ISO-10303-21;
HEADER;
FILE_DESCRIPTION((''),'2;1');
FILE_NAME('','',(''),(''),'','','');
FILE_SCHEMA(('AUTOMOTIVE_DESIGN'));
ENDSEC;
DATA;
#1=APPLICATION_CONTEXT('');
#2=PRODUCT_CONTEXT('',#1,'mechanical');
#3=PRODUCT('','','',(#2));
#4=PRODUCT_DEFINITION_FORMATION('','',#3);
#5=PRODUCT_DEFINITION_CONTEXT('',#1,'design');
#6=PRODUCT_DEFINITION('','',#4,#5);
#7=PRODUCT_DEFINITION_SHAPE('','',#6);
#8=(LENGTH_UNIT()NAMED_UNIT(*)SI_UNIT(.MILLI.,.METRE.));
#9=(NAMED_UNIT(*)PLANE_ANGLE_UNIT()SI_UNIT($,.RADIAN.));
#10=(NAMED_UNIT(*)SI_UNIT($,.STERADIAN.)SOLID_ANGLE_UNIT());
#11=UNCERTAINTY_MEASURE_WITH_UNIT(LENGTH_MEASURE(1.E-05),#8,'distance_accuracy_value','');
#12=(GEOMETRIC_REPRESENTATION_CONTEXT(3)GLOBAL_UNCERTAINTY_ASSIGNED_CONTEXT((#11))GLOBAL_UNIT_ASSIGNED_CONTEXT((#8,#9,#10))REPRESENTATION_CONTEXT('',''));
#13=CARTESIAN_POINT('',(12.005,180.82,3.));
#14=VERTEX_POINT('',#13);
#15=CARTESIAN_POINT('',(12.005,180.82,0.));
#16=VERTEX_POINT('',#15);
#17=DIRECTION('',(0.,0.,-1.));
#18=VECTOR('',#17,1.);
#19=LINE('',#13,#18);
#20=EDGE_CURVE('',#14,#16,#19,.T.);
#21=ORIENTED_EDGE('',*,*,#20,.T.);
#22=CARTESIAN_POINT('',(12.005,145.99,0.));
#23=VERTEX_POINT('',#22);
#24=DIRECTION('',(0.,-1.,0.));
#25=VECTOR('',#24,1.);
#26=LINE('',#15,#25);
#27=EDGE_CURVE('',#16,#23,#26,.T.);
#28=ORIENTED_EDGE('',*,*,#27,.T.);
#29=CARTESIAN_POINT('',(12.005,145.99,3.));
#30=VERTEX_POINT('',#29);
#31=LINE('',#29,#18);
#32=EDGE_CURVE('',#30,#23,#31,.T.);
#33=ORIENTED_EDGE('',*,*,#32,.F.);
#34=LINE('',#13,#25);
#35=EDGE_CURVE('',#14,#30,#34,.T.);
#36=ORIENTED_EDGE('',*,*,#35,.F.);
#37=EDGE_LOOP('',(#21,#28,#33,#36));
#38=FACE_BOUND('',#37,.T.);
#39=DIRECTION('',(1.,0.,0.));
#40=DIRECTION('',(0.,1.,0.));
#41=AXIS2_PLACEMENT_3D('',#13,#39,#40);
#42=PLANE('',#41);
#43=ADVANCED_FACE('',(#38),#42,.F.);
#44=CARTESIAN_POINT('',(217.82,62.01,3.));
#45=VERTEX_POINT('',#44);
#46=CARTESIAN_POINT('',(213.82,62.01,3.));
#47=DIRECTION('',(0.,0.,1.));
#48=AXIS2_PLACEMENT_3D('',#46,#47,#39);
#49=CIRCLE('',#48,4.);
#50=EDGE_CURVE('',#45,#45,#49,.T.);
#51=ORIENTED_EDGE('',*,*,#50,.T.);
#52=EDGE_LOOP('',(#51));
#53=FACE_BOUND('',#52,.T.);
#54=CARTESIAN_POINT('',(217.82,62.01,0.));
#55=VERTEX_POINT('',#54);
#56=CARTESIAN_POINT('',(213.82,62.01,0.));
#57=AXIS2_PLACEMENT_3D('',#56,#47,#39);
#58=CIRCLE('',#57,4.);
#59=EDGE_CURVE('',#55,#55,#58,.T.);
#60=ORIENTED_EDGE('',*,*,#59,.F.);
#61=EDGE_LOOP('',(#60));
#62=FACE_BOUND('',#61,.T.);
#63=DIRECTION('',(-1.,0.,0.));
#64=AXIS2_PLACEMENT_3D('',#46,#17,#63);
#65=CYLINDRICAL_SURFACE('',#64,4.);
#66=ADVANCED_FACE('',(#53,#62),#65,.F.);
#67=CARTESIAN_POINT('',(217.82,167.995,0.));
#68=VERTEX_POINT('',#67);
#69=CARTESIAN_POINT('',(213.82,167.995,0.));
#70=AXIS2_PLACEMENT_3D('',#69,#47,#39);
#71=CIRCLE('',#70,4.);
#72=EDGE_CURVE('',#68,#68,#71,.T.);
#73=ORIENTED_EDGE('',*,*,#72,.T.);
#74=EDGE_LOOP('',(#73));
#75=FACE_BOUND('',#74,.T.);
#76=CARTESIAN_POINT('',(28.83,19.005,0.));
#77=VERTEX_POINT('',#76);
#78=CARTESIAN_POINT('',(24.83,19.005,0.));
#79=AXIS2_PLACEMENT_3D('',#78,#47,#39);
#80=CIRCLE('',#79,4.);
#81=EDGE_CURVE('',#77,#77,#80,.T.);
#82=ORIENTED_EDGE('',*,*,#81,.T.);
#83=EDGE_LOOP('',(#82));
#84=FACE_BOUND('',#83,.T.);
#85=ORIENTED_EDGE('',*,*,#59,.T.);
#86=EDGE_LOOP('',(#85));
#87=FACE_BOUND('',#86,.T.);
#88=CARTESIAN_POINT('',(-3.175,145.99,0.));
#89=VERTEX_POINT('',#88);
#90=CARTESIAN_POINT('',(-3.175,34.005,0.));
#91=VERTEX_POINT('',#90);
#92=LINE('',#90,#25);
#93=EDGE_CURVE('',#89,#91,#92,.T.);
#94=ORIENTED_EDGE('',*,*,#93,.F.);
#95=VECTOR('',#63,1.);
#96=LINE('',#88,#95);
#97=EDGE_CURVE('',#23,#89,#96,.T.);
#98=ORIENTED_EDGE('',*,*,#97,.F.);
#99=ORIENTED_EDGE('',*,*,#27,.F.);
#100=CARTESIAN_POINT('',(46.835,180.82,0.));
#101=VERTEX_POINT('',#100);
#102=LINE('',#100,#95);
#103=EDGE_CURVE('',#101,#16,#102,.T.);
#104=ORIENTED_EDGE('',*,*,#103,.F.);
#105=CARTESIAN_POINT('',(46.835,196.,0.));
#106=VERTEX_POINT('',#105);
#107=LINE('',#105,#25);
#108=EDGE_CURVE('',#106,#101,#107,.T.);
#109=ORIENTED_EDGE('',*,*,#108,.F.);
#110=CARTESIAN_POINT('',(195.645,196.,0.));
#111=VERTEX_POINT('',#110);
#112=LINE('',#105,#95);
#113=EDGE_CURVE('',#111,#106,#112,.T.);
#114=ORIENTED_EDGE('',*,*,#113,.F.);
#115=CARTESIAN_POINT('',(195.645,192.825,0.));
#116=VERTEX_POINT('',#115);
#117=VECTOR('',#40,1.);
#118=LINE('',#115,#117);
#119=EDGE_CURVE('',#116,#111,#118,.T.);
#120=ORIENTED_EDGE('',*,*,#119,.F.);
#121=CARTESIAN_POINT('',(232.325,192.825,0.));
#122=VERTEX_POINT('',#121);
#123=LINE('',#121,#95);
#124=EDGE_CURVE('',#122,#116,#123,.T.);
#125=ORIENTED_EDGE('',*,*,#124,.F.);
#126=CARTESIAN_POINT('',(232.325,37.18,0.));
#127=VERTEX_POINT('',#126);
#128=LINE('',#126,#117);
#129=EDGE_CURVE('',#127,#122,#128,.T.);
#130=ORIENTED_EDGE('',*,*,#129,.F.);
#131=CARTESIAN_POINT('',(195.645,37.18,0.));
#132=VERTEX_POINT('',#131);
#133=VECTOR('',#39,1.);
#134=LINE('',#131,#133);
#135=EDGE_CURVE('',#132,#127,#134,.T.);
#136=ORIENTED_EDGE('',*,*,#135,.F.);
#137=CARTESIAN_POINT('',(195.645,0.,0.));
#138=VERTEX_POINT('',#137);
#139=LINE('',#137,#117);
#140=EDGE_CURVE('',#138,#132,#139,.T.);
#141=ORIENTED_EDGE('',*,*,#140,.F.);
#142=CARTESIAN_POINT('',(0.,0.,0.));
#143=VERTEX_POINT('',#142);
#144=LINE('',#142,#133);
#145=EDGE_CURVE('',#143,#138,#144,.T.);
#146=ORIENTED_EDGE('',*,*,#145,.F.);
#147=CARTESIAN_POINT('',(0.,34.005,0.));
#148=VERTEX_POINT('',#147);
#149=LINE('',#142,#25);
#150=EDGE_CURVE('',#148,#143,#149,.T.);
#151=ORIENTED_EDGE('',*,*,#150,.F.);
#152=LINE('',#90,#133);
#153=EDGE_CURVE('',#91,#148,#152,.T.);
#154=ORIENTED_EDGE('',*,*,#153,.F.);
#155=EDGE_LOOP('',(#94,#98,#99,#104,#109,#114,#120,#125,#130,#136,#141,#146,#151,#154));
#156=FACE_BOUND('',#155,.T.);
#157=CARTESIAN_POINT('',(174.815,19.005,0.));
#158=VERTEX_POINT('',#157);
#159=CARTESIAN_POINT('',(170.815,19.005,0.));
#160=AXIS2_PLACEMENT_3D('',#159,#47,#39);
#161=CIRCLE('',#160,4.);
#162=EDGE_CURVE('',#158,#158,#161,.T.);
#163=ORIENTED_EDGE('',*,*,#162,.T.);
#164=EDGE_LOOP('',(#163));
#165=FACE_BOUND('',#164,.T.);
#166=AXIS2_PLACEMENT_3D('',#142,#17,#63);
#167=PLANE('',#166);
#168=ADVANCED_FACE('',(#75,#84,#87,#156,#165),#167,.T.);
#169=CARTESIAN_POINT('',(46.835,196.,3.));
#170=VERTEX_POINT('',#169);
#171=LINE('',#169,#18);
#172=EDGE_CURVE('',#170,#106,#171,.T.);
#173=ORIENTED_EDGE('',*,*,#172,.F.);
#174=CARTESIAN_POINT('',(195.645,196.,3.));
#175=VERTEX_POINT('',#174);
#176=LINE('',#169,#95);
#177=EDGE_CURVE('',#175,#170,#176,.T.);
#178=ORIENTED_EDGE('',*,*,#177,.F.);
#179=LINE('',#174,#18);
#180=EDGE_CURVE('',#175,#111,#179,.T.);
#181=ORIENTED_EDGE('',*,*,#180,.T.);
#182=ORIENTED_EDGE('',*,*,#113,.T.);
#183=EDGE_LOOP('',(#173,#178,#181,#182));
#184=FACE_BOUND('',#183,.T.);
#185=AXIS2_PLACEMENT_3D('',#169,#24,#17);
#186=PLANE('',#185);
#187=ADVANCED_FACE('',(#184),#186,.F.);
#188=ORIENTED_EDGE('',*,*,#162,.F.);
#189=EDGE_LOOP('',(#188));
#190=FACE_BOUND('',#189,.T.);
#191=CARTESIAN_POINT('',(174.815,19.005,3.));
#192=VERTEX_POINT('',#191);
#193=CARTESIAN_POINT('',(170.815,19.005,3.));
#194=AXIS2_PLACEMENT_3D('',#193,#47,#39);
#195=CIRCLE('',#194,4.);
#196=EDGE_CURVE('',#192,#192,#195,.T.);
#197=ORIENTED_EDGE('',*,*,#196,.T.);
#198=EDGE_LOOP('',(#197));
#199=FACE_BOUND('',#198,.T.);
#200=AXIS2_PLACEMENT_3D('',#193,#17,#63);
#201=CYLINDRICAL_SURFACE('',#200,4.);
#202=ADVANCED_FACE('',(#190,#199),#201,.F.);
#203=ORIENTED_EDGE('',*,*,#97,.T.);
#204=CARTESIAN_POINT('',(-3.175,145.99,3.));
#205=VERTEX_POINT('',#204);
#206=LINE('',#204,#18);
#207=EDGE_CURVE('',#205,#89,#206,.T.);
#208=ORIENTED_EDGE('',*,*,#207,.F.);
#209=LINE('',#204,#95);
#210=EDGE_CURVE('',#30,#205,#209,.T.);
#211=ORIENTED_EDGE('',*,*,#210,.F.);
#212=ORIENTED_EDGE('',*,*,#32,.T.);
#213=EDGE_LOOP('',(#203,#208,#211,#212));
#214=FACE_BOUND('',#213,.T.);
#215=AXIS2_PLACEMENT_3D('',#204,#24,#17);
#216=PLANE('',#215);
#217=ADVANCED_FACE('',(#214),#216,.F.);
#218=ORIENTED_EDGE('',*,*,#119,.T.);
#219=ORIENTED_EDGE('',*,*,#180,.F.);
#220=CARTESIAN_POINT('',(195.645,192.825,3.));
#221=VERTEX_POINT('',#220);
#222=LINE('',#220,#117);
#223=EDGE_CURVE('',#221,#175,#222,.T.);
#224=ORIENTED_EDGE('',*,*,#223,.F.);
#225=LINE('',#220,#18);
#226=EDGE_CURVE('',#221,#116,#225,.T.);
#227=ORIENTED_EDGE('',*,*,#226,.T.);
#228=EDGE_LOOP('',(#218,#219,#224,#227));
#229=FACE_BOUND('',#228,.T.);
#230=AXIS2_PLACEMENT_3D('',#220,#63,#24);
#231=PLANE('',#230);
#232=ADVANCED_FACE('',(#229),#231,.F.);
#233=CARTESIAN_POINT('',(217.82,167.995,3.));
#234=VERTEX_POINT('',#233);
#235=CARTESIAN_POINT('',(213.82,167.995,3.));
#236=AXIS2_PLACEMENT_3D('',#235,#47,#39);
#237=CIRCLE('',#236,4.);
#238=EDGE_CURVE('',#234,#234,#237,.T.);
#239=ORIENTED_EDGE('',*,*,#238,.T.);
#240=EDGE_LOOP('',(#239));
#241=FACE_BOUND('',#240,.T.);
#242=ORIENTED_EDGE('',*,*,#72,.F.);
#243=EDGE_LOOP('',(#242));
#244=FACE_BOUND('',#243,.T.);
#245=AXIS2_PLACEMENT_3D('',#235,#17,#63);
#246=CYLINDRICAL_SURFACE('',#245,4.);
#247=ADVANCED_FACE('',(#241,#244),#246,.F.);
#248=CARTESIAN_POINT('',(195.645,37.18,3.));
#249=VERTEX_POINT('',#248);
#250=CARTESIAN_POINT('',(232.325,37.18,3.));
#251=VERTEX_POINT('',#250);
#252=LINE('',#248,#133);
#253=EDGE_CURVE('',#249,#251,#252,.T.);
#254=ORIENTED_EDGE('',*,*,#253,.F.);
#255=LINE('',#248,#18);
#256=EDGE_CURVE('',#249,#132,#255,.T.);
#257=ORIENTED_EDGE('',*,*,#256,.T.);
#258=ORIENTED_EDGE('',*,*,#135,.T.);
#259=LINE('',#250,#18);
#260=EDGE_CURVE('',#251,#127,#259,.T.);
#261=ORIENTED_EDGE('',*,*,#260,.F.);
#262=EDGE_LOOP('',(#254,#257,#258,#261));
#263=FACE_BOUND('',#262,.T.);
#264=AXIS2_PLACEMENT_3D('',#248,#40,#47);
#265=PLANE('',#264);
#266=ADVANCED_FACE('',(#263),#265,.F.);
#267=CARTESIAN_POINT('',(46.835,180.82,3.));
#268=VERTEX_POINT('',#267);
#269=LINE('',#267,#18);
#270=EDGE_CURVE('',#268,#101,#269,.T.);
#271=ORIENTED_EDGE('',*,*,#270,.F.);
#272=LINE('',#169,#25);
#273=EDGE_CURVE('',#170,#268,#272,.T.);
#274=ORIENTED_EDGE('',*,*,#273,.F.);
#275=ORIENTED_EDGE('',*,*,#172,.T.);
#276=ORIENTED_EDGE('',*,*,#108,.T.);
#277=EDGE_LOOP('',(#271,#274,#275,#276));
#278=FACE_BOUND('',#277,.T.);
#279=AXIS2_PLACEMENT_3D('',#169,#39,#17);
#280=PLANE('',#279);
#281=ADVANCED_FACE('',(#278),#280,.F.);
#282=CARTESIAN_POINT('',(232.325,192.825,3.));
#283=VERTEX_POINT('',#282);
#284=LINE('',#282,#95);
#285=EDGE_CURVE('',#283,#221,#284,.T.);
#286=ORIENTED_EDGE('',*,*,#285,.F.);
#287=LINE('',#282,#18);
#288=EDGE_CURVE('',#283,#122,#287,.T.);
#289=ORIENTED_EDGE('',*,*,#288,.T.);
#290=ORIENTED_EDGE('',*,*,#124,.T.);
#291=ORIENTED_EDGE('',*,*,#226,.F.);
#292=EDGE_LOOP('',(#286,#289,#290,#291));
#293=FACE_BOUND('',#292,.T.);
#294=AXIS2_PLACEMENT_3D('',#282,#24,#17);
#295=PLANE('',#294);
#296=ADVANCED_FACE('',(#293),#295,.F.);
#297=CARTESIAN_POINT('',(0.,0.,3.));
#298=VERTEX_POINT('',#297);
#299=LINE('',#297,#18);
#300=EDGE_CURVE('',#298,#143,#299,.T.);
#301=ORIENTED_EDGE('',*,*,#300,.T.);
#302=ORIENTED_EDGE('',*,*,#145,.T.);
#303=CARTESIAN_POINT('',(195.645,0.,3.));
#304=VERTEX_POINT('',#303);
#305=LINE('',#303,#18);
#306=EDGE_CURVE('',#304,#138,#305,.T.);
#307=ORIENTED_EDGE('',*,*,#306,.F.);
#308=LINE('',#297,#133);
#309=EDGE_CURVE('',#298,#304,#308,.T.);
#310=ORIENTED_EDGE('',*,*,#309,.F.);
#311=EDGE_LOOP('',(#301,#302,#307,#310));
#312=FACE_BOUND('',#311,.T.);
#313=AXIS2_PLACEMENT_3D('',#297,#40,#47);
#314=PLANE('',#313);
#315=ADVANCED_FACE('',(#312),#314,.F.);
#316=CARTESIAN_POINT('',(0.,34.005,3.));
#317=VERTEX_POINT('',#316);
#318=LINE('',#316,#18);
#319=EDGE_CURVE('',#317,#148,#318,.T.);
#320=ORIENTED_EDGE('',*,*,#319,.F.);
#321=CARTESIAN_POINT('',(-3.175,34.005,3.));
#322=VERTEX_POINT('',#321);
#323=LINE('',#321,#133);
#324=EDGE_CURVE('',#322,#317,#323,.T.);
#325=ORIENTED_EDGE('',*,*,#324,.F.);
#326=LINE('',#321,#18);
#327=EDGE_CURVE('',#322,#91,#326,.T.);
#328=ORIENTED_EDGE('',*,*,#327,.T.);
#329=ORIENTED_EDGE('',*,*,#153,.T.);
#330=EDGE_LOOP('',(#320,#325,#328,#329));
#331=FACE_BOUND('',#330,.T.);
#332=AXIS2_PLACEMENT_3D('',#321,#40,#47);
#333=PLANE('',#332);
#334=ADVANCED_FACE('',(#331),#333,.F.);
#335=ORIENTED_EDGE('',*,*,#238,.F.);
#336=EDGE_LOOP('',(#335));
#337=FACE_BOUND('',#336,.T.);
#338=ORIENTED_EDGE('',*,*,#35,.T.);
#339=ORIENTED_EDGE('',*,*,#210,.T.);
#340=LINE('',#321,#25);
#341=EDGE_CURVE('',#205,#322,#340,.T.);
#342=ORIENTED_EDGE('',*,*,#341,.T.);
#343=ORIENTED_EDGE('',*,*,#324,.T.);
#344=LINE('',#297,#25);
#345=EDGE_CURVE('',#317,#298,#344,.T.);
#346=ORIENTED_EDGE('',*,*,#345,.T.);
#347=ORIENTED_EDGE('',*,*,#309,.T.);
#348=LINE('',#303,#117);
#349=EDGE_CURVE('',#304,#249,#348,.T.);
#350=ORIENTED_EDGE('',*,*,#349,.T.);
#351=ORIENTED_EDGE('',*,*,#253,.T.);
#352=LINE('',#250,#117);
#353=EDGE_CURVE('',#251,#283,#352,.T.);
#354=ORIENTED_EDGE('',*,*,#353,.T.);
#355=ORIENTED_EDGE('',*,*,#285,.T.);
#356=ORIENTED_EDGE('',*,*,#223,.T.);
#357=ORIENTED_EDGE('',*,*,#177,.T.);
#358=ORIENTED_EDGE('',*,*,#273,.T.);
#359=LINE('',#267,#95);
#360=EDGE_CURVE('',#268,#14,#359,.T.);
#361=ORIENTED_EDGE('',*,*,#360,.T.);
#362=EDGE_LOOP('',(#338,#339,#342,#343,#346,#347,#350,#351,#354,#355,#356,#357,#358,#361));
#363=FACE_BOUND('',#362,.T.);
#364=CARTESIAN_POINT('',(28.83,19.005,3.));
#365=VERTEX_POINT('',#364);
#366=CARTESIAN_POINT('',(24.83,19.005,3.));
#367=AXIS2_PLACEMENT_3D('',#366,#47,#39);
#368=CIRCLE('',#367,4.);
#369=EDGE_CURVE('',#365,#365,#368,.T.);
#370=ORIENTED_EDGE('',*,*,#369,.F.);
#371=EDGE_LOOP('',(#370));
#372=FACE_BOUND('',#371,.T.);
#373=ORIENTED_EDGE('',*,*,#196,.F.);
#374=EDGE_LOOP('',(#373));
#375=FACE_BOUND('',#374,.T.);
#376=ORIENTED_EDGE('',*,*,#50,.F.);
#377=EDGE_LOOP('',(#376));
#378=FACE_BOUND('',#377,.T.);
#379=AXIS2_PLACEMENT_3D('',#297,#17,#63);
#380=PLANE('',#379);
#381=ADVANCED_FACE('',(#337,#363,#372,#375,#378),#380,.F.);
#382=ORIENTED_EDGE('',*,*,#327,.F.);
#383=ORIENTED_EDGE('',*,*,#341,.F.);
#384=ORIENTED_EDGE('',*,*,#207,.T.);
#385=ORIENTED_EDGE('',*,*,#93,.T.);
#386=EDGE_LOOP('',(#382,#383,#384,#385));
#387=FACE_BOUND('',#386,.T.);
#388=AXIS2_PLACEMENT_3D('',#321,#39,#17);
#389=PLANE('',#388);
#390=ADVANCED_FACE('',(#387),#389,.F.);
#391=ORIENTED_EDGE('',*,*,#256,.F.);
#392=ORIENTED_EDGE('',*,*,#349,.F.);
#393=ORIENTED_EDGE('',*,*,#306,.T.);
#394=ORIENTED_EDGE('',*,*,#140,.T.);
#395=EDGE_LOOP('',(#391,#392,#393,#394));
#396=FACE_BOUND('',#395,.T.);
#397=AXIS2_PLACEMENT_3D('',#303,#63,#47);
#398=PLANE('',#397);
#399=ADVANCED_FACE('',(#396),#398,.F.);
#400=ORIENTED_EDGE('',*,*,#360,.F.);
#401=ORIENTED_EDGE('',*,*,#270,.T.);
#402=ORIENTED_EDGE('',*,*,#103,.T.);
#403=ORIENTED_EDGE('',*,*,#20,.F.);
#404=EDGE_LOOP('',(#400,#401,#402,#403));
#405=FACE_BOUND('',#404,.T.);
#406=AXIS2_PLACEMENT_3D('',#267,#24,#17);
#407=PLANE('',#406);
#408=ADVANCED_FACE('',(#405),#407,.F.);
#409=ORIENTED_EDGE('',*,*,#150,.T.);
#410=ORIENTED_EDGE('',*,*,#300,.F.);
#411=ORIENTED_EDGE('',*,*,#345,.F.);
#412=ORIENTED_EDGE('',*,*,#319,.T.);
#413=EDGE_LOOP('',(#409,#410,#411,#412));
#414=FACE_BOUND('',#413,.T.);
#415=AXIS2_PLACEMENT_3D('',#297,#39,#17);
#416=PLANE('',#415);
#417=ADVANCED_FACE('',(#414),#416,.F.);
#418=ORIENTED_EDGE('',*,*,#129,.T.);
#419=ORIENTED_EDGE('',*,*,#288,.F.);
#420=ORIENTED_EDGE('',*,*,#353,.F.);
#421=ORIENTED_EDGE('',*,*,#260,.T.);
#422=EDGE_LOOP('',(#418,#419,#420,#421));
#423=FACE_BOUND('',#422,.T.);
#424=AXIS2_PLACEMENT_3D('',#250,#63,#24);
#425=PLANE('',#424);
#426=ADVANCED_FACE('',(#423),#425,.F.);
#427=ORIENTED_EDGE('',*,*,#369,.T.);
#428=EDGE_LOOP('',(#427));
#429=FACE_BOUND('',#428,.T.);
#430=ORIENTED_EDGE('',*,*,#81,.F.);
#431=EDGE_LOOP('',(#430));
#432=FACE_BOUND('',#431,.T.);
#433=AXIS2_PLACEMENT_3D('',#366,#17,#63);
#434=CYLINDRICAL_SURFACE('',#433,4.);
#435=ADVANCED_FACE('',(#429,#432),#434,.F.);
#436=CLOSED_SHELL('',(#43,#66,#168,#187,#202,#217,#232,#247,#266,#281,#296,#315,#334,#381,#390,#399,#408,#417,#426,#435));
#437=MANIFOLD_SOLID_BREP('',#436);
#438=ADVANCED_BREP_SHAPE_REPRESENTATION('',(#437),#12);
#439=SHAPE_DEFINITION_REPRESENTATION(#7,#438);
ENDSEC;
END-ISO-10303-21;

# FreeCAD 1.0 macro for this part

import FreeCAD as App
import Part
import Sketcher

V = App.Vector

doc = App.newDocument("Part")
body = doc.addObject("PartDesign::Body", "Body")

# Sketch on XY plane
sketch1 = body.newObject("Sketcher::SketchObject", "Sketch")
sketch1.AttachmentSupport = (doc.getObject("XY_Plane"), [""])
sketch1.MapMode = "FlatFace"
sketch1.addGeometry([
    Part.LineSegment(V(195.6, 0, 0), V(195.6, 37.2, 0)),  # 0
    Part.LineSegment(V(195.6, 37.2, 0), V(232.3, 37.2, 0)),  # 1
    Part.LineSegment(V(232.3, 37.2, 0), V(232.3, 192.8, 0)),  # 2
    Part.LineSegment(V(232.3, 192.8, 0), V(195.6, 192.8, 0)),  # 3
    Part.LineSegment(V(195.6, 192.8, 0), V(195.6, 196, 0)),  # 4
    Part.LineSegment(V(195.6, 196, 0), V(46.8, 196, 0)),  # 5
    Part.LineSegment(V(46.8, 196, 0), V(46.8, 180.8, 0)),  # 6
    Part.LineSegment(V(46.8, 180.8, 0), V(12, 180.8, 0)),  # 7
    Part.LineSegment(V(12, 180.8, 0), V(12, 146, 0)),  # 8
    Part.LineSegment(V(12, 146, 0), V(-3.2, 146, 0)),  # 9
    Part.LineSegment(V(-3.2, 146, 0), V(-3.2, 34, 0)),  # 10
    Part.LineSegment(V(-3.2, 34, 0), V(0, 34, 0)),  # 11
    Part.LineSegment(V(0, 34, 0), V(0, 0, 0)),  # 12
    Part.LineSegment(V(0, 0, 0), V(195.6, 0, 0)),  # 13
    Part.Circle(V(24.8, 19, 0), V(0, 0, 1), 4),  # 14
    Part.Circle(V(170.8, 19, 0), V(0, 0, 1), 4),  # 15
    Part.Circle(V(213.8, 62, 0), V(0, 0, 1), 4),  # 16
    Part.Circle(V(213.8, 168, 0), V(0, 0, 1), 4),  # 17
], False)
sketch1.addConstraint([
    Sketcher.Constraint("Coincident", 0, 2, 1, 1),
    Sketcher.Constraint("Coincident", 1, 2, 2, 1),
    Sketcher.Constraint("Coincident", 2, 2, 3, 1),
    Sketcher.Constraint("Coincident", 3, 2, 4, 1),
    Sketcher.Constraint("Coincident", 4, 2, 5, 1),
    Sketcher.Constraint("Coincident", 5, 2, 6, 1),
    Sketcher.Constraint("Coincident", 6, 2, 7, 1),
    Sketcher.Constraint("Coincident", 7, 2, 8, 1),
    Sketcher.Constraint("Coincident", 8, 2, 9, 1),
    Sketcher.Constraint("Coincident", 9, 2, 10, 1),
    Sketcher.Constraint("Coincident", 10, 2, 11, 1),
    Sketcher.Constraint("Coincident", 11, 2, 12, 1),
    Sketcher.Constraint("Coincident", 12, 2, 13, 1),
    Sketcher.Constraint("Coincident", 13, 2, 0, 1),
    Sketcher.Constraint("Vertical", 0),
    Sketcher.Constraint("Horizontal", 1),
    Sketcher.Constraint("Vertical", 2),
    Sketcher.Constraint("Horizontal", 3),
    Sketcher.Constraint("Vertical", 4),
    Sketcher.Constraint("Horizontal", 5),
    Sketcher.Constraint("Vertical", 6),
    Sketcher.Constraint("Horizontal", 7),
    Sketcher.Constraint("Vertical", 8),
    Sketcher.Constraint("Horizontal", 9),
    Sketcher.Constraint("Vertical", 10),
    Sketcher.Constraint("Horizontal", 11),
    Sketcher.Constraint("Vertical", 12),
    Sketcher.Constraint("Horizontal", 13),
    Sketcher.Constraint("Coincident", 12, 2, -1, 1),
    Sketcher.Constraint("Equal", 14, 15),
    Sketcher.Constraint("Equal", 15, 16),
    Sketcher.Constraint("Equal", 16, 17),
    Sketcher.Constraint("Horizontal", 14, 3, 15, 3),
    Sketcher.Constraint("Vertical", 16, 3, 17, 3),
    Sketcher.Constraint("Vertical", 0, 2, 3, 2),
    Sketcher.Constraint("Equal", 11, 4),
    Sketcher.Constraint("Equal", 9, 6),
    Sketcher.Constraint("Equal", 7, 8),
    Sketcher.Constraint("Diameter", 14, 8.0),
    Sketcher.Constraint("DistanceY", -1, 1, 4, 2, 196.0),
    Sketcher.Constraint("DistanceY", 14, 3, 10, 2, 15.0),
    Sketcher.Constraint("DistanceX", 1, 1, 1, 2, 36.68),
    Sketcher.Constraint("DistanceX", 5, 2, 5, 1, 148.81),
    Sketcher.Constraint("DistanceX", 7, 2, 7, 1, 34.83),
    Sketcher.Constraint("DistanceX", 9, 2, 9, 1, 15.18),
    Sketcher.Constraint("DistanceY", 0, 1, 0, 2, 37.18),
    Sketcher.Constraint("DistanceX", 11, 1, 11, 2, 3.175),
    Sketcher.Constraint("DistanceY", 10, 2, 10, 1, 111.985),
    Sketcher.Constraint("DistanceX", -1, 1, 14, 3, 24.83),
    Sketcher.Constraint("DistanceX", -1, 1, 16, 3, 213.82),
    Sketcher.Constraint("DistanceY", -1, 1, 16, 3, 62.01),
    Sketcher.Constraint("DistanceY", 15, 3, 17, 3, 148.99),
    Sketcher.Constraint("DistanceX", 15, 3, 0, 2, 24.83),
])
pad1 = body.newObject("PartDesign::Pad", "Pad")
pad1.Profile = sketch1
pad1.Length = 3

doc.recompute()
